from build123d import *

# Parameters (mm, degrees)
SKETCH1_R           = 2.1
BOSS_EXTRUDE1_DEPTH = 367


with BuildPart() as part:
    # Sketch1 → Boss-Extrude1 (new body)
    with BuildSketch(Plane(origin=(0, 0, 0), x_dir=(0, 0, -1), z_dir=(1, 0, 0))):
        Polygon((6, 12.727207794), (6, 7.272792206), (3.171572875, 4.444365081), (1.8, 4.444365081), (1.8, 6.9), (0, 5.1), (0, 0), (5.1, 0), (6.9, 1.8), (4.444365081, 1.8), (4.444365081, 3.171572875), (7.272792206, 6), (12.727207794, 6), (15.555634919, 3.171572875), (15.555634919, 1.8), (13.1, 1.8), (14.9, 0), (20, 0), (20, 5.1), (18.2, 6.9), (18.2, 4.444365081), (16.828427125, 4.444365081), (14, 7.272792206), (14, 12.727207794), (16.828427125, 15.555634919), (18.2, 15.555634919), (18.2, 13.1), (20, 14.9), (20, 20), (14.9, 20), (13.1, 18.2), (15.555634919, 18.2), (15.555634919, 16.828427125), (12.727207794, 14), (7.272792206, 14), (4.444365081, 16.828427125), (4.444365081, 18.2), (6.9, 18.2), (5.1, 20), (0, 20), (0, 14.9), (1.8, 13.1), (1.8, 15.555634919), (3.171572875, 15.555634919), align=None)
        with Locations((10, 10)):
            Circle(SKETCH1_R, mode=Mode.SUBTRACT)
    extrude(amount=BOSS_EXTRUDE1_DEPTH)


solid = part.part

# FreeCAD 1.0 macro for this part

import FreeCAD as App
import Part
import Sketcher

V = App.Vector
Q = App.Units.Quantity


def add_polygon(sketch, points):
    """Adds a closed chain of lines whose ends are joined by coincident constraints."""
    first, n = sketch.GeometryCount, len(points)
    for a, b in zip(points, points[1:] + points[:1]):
        sketch.addGeometry(Part.LineSegment(App.Vector(*a, 0), App.Vector(*b, 0)), False)
    for i in range(n):
        sketch.addConstraint(Sketcher.Constraint("Coincident", first + i, 2, first + (i + 1) % n, 1))

doc = App.newDocument("Part")
body = doc.addObject("PartDesign::Body", "Body")

sketch1 = body.newObject("Sketcher::SketchObject", "Sketch")
sketch1.AttachmentSupport = (doc.getObject("YZ_Plane"), [""])
sketch1.MapMode = "FlatFace"
add_polygon(sketch1, [(12.727208, -6), (7.272792, -6), (4.444365, -3.171573), (4.444365, -1.8), (6.9, -1.8), (5.1, 0), (0, 0), (0, -5.1), (1.8, -6.9), (1.8, -4.444365), (3.171573, -4.444365), (6, -7.272792), (6, -12.727208), (3.171573, -15.555635), (1.8, -15.555635), (1.8, -13.1), (0, -14.9), (0, -20), (5.1, -20), (6.9, -18.2), (4.444365, -18.2), (4.444365, -16.828427), (7.272792, -14), (12.727208, -14), (15.555635, -16.828427), (15.555635, -18.2), (13.1, -18.2), (14.9, -20), (20, -20), (20, -14.9), (18.2, -13.1), (18.2, -15.555635), (16.828427, -15.555635), (14, -12.727208), (14, -7.272792), (16.828427, -4.444365), (18.2, -4.444365), (18.2, -6.9), (20, -5.1), (20, 0), (14.9, 0), (13.1, -1.8), (15.555635, -1.8), (15.555635, -3.171573)])
sketch1.addGeometry(Part.Circle(V(10, -10, 0), V(0, 0, 1), 2.1), False)
sketch1.addConstraint([
    Sketcher.Constraint("Horizontal", 0),
    Sketcher.Constraint("Vertical", 2),
    Sketcher.Constraint("Horizontal", 3),
    Sketcher.Constraint("Horizontal", 5),
    Sketcher.Constraint("Vertical", 6),
    Sketcher.Constraint("Vertical", 8),
    Sketcher.Constraint("Horizontal", 9),
    Sketcher.Constraint("Vertical", 11),
    Sketcher.Constraint("Horizontal", 13),
    Sketcher.Constraint("Vertical", 14),
    Sketcher.Constraint("Vertical", 16),
    Sketcher.Constraint("Horizontal", 17),
    Sketcher.Constraint("Horizontal", 19),
    Sketcher.Constraint("Vertical", 20),
    Sketcher.Constraint("Horizontal", 22),
    Sketcher.Constraint("Vertical", 24),
    Sketcher.Constraint("Horizontal", 25),
    Sketcher.Constraint("Horizontal", 27),
    Sketcher.Constraint("Vertical", 28),
    Sketcher.Constraint("Vertical", 30),
    Sketcher.Constraint("Horizontal", 31),
    Sketcher.Constraint("Vertical", 33),
    Sketcher.Constraint("Horizontal", 35),
    Sketcher.Constraint("Vertical", 36),
    Sketcher.Constraint("Vertical", 38),
    Sketcher.Constraint("Horizontal", 39),
    Sketcher.Constraint("Horizontal", 41),
    Sketcher.Constraint("Vertical", 42),
    Sketcher.Constraint("Coincident", 5, 2, -1, 1),
    Sketcher.Constraint("PointOnObject", 15, 2, -2),
    Sketcher.Constraint("PointOnObject", 38, 2, -1),
    Sketcher.Constraint("Parallel", 1, 4),
    Sketcher.Constraint("Parallel", 4, 7),
    Sketcher.Constraint("Parallel", 7, 10),
    Sketcher.Constraint("Perpendicular", 10, 12),
    Sketcher.Constraint("Parallel", 12, 15),
    Sketcher.Constraint("Parallel", 15, 18),
    Sketcher.Constraint("Parallel", 18, 21),
    Sketcher.Constraint("Perpendicular", 21, 23),
    Sketcher.Constraint("Parallel", 23, 26),
    Sketcher.Constraint("Parallel", 26, 29),
    Sketcher.Constraint("Parallel", 29, 32),
    Sketcher.Constraint("Perpendicular", 32, 34),
    Sketcher.Constraint("Parallel", 34, 37),
    Sketcher.Constraint("Parallel", 37, 40),
    Sketcher.Constraint("Parallel", 40, 43),
    Sketcher.Constraint("Horizontal", 20, 2, 23, 2),
    Sketcher.Constraint("Horizontal", 19, 2, 24, 2),
    Sketcher.Constraint("Horizontal", 17, 2, 26, 2),
    Sketcher.Constraint("Horizontal", 15, 2, 28, 2),
    Sketcher.Constraint("Horizontal", 14, 2, 29, 2),
    Sketcher.Constraint("Horizontal", 13, 2, 30, 2),
    Sketcher.Constraint("Horizontal", 11, 2, 32, 2),
    Sketcher.Constraint("Horizontal", 10, 2, 33, 2),
    Sketcher.Constraint("Horizontal", 9, 2, 34, 2),
    Sketcher.Constraint("Horizontal", 7, 2, 36, 2),
    Sketcher.Constraint("Horizontal", 6, 2, 37, 2),
    Sketcher.Constraint("Horizontal", 3, 2, 40, 2),
    Sketcher.Constraint("Horizontal", 1, 2, 42, 2),
    Sketcher.Constraint("Vertical", 9, 2, 12, 2),
    Sketcher.Constraint("Vertical", 8, 2, 13, 2),
    Sketcher.Constraint("Vertical", 4, 2, 17, 2),
    Sketcher.Constraint("Vertical", 3, 2, 18, 2),
    Sketcher.Constraint("Vertical", 2, 2, 19, 2),
    Sketcher.Constraint("Vertical", 0, 2, 21, 2),
    Sketcher.Constraint("Vertical", 31, 2, 34, 2),
    Sketcher.Constraint("Vertical", 30, 2, 35, 2),
    Sketcher.Constraint("Vertical", 26, 2, 39, 2),
    Sketcher.Constraint("Vertical", 24, 2, 41, 2),
    Sketcher.Constraint("Equal", 19, 25),
    Sketcher.Constraint("Equal", 17, 27),
    Sketcher.Constraint("Equal", 13, 31),
    Sketcher.Constraint("Equal", 35, 2),
    Sketcher.Constraint("Equal", 39, 6),
    Sketcher.Constraint("Equal", 41, 8),
    Sketcher.Constraint("Equal", 22, 11),
    Sketcher.Constraint("Equal", 8, 14),
    Sketcher.Constraint("Equal", 6, 16),
    Sketcher.Constraint("Equal", 2, 20),
    Sketcher.Constraint("Equal", 4, 7),
    Sketcher.Constraint("Equal", 1, 10),
    Sketcher.Constraint("Diameter", 44, Q("4.2 mm")),
    Sketcher.Constraint("Distance", 1, Q("4 mm")),
    Sketcher.Constraint("DistanceX", 5, 2, 5, 1, Q("5.1 mm")),
    Sketcher.Constraint("DistanceX", -1, 1, 44, 3, Q("10 mm")),
    Sketcher.Constraint("DistanceY", 44, 3, -1, 1, Q("10 mm")),
    Sketcher.Constraint("DistanceY", 0, 2, -1, 1, Q("6 mm")),
    Sketcher.Constraint("DistanceY", 16, 2, -1, 1, Q("20 mm")),
    Sketcher.Constraint("DistanceY", 15, 2, 7, 2, Q("8 mm")),
    Sketcher.Constraint("DistanceX", 0, 2, 0, 1, Q("5.454416 mm")),
])
pad1 = body.newObject("PartDesign::Pad", "Pad")
pad1.Profile = sketch1
pad1.Length = 367

doc.recompute()
